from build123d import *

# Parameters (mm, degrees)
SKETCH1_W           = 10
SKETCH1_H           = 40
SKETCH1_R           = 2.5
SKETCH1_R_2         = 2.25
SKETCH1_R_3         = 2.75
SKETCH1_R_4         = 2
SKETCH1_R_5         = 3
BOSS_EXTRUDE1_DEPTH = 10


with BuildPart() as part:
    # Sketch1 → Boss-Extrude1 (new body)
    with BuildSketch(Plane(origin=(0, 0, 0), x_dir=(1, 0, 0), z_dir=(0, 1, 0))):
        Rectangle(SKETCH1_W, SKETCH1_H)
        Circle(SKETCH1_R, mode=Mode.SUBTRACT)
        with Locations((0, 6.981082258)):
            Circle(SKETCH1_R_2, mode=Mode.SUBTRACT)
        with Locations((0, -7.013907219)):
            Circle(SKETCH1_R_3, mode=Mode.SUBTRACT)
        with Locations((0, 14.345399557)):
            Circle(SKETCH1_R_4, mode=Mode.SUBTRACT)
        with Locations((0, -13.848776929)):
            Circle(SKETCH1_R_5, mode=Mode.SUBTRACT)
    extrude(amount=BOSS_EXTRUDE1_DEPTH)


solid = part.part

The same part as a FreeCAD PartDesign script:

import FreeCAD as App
import Part
import Sketcher

V = App.Vector

doc = App.newDocument("Part")
body = doc.addObject("PartDesign::Body", "Body")

sketch1 = body.newObject("Sketcher::SketchObject", "Sketch")
sketch1.AttachmentSupport = (doc.getObject("XZ_Plane"), [""])
sketch1.MapMode = "FlatFace"
sketch1.addGeometry(Part.LineSegment(V(-5, -20, 0), V(-5, 20, 0)), False)
sketch1.addGeometry(Part.LineSegment(V(-5, 20, 0), V(5, 20, 0)), False)
sketch1.addGeometry(Part.LineSegment(V(5, 20, 0), V(5, -20, 0)), False)
sketch1.addGeometry(Part.LineSegment(V(5, -20, 0), V(-5, -20, 0)), False)
sketch1.addGeometry(Part.Circle(V(0, 13.848777, 0), V(0, 0, 1), 3), False)
sketch1.addGeometry(Part.Circle(V(0, 7.013907, 0), V(0, 0, 1), 2.75), False)
sketch1.addGeometry(Part.Circle(V(0, 0, 0), V(0, 0, 1), 2.5), False)
sketch1.addGeometry(Part.Circle(V(0, -6.981082, 0), V(0, 0, 1), 2.25), False)
sketch1.addGeometry(Part.Circle(V(0, -14.3454, 0), V(0, 0, 1), 2), False)
sketch1.addConstraint(Sketcher.Constraint("Coincident", 0, 2, 1, 1))
sketch1.addConstraint(Sketcher.Constraint("Coincident", 1, 2, 2, 1))
sketch1.addConstraint(Sketcher.Constraint("Coincident", 2, 2, 3, 1))
sketch1.addConstraint(Sketcher.Constraint("Coincident", 3, 2, 0, 1))
sketch1.addConstraint(Sketcher.Constraint("Vertical", 0))
sketch1.addConstraint(Sketcher.Constraint("Horizontal", 1))
sketch1.addConstraint(Sketcher.Constraint("Vertical", 2))
sketch1.addConstraint(Sketcher.Constraint("Horizontal", 3))
sketch1.addConstraint(Sketcher.Constraint("Coincident", 6, 3, -1, 1))
sketch1.addConstraint(Sketcher.Constraint("Symmetric", 0, 2, 2, 2, -1, 1))
sketch1.addConstraint(Sketcher.Constraint("PointOnObject", 4, 3, -2))
sketch1.addConstraint(Sketcher.Constraint("PointOnObject", 5, 3, -2))
sketch1.addConstraint(Sketcher.Constraint("PointOnObject", 7, 3, -2))
sketch1.addConstraint(Sketcher.Constraint("PointOnObject", 8, 3, -2))
sketch1.addConstraint(Sketcher.Constraint("Diameter", 4, 6.0))
sketch1.addConstraint(Sketcher.Constraint("Diameter", 6, 5.0))
sketch1.addConstraint(Sketcher.Constraint("Diameter", 8, 4.0))
sketch1.addConstraint(Sketcher.Constraint("Diameter", 5, 5.5))
sketch1.addConstraint(Sketcher.Constraint("Diameter", 7, 4.5))
sketch1.addConstraint(Sketcher.Constraint("DistanceX", 1, 1, 1, 2, 10.0))
sketch1.addConstraint(Sketcher.Constraint("DistanceY", 0, 1, 0, 2, 40.0))
sketch1.addConstraint(Sketcher.Constraint("DistanceY", 8, 3, -1, 1, 14.3454))
sketch1.addConstraint(Sketcher.Constraint("DistanceY", 5, 3, 4, 3, 6.83487))
sketch1.addConstraint(Sketcher.Constraint("DistanceY", 7, 3, 5, 3, 13.994989))
sketch1.addConstraint(Sketcher.Constraint("DistanceY", -1, 1, 4, 3, 13.848777))
pad1 = body.newObject("PartDesign::Pad", "Pad")
pad1.Profile = sketch1
pad1.Length = 10
pad1.Reversed = True

doc.recompute()
